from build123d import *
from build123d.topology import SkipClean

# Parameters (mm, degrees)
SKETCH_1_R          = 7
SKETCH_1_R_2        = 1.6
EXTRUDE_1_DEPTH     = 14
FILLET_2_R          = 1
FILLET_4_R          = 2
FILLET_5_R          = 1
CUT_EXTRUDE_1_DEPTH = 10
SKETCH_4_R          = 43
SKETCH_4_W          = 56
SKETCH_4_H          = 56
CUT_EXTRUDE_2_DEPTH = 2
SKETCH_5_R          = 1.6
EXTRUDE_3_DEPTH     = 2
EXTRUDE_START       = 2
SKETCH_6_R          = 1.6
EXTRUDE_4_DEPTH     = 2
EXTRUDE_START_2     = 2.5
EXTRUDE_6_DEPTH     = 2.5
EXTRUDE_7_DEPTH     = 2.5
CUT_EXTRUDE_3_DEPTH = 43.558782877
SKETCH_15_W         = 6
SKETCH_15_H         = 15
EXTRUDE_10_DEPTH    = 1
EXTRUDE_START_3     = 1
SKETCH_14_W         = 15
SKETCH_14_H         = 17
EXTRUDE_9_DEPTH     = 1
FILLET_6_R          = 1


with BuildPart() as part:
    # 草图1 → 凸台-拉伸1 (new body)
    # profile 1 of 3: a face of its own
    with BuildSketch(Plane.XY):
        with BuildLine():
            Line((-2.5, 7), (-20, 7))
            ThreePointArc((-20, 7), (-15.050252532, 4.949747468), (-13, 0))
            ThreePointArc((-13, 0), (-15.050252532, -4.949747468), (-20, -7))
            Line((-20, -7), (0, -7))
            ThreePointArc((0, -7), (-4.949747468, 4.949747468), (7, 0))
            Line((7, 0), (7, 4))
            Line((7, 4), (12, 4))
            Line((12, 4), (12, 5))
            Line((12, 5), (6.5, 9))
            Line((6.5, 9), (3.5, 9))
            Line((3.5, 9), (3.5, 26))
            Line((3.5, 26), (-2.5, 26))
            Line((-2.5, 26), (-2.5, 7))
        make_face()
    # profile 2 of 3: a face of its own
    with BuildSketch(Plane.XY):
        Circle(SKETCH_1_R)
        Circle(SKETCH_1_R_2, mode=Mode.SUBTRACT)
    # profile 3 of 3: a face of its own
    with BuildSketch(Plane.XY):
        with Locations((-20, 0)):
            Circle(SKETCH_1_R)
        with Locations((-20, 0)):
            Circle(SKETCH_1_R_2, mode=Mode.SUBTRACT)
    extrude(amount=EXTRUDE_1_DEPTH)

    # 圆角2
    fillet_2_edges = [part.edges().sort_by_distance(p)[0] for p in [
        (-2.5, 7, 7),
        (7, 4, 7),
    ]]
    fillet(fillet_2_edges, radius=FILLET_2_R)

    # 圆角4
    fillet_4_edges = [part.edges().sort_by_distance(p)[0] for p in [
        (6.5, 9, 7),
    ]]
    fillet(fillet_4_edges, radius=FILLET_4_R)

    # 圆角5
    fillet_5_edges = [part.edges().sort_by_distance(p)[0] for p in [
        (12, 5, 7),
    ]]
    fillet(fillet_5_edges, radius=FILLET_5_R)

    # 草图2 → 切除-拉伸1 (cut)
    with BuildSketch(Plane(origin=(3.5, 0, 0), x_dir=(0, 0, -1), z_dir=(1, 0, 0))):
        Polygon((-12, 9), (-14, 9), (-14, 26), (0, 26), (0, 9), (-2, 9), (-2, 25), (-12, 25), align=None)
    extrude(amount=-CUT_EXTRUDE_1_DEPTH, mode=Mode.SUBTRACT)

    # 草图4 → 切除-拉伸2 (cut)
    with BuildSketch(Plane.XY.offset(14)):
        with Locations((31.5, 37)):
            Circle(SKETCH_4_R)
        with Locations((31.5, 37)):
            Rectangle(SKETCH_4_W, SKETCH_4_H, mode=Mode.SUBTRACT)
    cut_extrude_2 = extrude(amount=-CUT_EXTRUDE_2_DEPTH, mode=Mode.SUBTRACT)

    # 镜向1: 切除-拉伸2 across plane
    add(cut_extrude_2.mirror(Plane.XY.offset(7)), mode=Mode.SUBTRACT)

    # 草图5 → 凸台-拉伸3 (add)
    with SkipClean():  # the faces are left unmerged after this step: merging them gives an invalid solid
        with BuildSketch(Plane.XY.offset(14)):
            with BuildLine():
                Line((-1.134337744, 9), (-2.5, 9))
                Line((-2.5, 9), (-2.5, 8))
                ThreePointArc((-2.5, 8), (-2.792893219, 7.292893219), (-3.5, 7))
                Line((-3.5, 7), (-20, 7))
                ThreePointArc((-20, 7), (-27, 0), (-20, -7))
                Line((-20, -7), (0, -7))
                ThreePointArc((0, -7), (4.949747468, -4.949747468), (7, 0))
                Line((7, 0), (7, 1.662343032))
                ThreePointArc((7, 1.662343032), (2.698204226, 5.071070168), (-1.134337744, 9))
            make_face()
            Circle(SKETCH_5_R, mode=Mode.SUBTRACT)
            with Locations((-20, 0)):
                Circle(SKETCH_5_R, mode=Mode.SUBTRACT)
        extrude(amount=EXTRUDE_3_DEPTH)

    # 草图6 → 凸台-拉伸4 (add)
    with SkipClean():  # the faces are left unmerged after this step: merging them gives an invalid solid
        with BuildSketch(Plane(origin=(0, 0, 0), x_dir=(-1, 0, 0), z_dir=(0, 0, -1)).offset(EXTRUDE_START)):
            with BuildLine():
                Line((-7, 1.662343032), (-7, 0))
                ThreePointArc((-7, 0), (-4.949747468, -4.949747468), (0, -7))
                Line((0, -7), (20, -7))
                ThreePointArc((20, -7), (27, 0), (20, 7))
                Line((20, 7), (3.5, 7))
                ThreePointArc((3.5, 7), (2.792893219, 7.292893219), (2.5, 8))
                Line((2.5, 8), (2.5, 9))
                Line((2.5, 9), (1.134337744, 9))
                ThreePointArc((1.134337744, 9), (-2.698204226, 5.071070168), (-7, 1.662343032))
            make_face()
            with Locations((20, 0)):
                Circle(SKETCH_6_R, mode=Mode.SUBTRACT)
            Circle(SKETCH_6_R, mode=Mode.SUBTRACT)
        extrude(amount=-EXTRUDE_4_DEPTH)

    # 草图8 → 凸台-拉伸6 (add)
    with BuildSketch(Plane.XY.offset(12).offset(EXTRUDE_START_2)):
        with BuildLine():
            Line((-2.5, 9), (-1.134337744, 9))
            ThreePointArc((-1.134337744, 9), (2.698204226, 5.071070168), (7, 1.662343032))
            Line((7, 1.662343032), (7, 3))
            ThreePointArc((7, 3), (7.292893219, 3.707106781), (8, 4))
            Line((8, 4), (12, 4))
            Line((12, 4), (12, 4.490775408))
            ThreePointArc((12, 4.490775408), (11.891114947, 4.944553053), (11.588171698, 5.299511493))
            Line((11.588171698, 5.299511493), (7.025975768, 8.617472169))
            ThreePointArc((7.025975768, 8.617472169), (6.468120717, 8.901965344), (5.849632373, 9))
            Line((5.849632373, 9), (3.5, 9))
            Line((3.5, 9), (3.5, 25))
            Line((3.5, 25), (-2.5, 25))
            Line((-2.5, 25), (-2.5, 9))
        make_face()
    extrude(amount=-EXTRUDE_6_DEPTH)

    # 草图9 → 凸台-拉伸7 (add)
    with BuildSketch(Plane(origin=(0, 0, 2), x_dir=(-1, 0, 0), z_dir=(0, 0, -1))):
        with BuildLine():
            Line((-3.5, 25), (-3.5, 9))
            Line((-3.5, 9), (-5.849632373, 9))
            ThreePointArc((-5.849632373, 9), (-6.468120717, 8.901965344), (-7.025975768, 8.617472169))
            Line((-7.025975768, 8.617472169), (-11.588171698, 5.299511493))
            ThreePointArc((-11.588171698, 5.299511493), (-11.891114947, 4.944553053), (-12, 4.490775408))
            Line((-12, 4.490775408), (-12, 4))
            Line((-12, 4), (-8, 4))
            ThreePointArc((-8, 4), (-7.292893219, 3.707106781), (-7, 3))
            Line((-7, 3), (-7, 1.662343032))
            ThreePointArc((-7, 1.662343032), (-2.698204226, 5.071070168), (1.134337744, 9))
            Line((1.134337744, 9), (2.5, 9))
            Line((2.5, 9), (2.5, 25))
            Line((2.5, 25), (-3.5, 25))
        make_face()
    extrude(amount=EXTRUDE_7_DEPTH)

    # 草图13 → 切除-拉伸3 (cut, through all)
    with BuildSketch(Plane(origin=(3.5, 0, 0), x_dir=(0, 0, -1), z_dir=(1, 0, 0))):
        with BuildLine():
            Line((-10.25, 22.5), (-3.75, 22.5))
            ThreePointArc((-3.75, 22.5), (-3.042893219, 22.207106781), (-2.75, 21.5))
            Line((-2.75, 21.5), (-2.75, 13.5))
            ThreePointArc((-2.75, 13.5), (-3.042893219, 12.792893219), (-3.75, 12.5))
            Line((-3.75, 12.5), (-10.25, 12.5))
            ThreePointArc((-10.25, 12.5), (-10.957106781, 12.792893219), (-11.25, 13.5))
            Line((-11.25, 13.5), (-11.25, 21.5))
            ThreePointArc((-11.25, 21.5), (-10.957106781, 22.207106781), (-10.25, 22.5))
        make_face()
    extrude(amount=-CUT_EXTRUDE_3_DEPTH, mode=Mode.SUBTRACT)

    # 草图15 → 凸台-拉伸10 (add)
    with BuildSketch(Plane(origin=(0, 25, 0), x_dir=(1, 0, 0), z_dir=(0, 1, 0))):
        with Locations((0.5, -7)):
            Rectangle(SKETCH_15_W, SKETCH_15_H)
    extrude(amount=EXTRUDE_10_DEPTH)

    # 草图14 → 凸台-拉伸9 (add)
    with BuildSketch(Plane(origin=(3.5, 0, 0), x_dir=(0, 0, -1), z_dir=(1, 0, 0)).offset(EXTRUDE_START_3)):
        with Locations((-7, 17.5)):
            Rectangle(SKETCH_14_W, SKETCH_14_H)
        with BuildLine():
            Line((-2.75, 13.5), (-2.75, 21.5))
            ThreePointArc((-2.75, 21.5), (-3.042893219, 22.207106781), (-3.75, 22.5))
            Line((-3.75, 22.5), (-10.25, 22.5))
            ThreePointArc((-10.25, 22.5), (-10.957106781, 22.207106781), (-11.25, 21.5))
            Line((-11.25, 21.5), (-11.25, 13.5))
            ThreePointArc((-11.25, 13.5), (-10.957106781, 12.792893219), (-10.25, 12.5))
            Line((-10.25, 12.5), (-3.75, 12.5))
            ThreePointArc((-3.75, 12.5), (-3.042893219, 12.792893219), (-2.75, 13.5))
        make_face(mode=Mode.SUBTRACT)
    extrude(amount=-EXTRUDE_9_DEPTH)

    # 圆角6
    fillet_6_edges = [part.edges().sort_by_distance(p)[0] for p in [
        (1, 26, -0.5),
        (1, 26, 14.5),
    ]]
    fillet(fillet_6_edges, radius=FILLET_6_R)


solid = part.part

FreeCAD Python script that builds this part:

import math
import FreeCAD as App
import Part
import Sketcher
from FreeCAD import Vector


def edges_at(feature, points):
    """Names of the edges that pass closest to the given points."""
    edges = feature.Shape.Edges
    near = lambda p: min(range(len(edges)), key=lambda i: edges[i].distToShape(Part.Vertex(*p))[0])
    return sorted({f"Edge{near(p) + 1}" for p in points})


def add_polygon(sketch, points):
    """Adds a closed chain of lines whose ends are joined by coincident constraints."""
    first, n = sketch.GeometryCount, len(points)
    for a, b in zip(points, points[1:] + points[:1]):
        sketch.addGeometry(Part.LineSegment(App.Vector(*a, 0), App.Vector(*b, 0)), False)
    for i in range(n):
        sketch.addConstraint(Sketcher.Constraint("Coincident", first + i, 2, first + (i + 1) % n, 1))

doc = App.newDocument("Part")
params = doc.addObject("Spreadsheet::Sheet", "Params")
for row, (alias, value) in enumerate([
    ("sketch1_radius", "7 mm"),
    ("sketch1_diameter", "3.2 mm"),
    ("sketch1_width", "20 mm"),
    ("sketch1_width2", "5 mm"),
    ("sketch1_width3", "3 mm"),
    ("pad1_length", "14 mm"),
    ("fillet_radius", "1 mm"),
    ("fillet2_radius", "2 mm"),
    ("fillet3_radius", "1 mm"),
    ("sketch2_width", "16 mm"),
    ("sketch2_width2", "17 mm"),
    ("sketch2_height", "2 mm"),
    ("sketch2_height2", "10 mm"),
    ("pocket1_length", "10 mm"),
    ("sketch3_diameter", "86 mm"),
    ("sketch3_width", "56 mm"),
    ("pocket2_length", "2 mm"),
    ("sketch4_radius", "1 mm"),
    ("sketch4_radius2", "7 mm"),
    ("sketch4_radius3", "43 mm"),
    ("sketch4_diameter", "3.2 mm"),
    ("sketch4_width", "20 mm"),
    ("pad2_length", "2 mm"),
    ("sketch5_radius", "7 mm"),
    ("sketch5_radius2", "1 mm"),
    ("sketch5_radius3", "43 mm"),
    ("sketch5_diameter", "3.2 mm"),
    ("sketch5_width", "20 mm"),
    ("pad3_length", "2 mm"),
    ("sketch6_radius", "43 mm"),
    ("sketch6_radius2", "1 mm"),
    ("sketch6_radius3", "2 mm"),
    ("sketch6_width", "4 mm"),
    ("sketch6_width2", "6 mm"),
    ("pad4_length", "2.5 mm"),
    ("sketch7_radius", "2 mm"),
    ("sketch7_radius2", "1 mm"),
    ("sketch7_radius3", "43 mm"),
    ("sketch7_width", "4 mm"),
    ("sketch7_width2", "6 mm"),
    ("pad5_length", "2.5 mm"),
    ("sketch8_radius", "1 mm"),
    ("sketch8_width", "8 mm"),
    ("sketch8_height", "6.5 mm"),
    ("sketch9_width", "6 mm"),
    ("sketch9_height", "15 mm"),
    ("pad6_length", "1 mm"),
    ("sketch10_radius", "1 mm"),
    ("sketch10_width", "17 mm"),
    ("sketch10_width2", "8 mm"),
    ("sketch10_height", "15 mm"),
    ("sketch10_height2", "6.5 mm"),
    ("pad7_length", "1 mm"),
    ("fillet4_radius", "1 mm"),
], start=1):
    params.set(f"A{row}", alias)
    params.set(f"B{row}", "=" + value)
    params.setAlias(f"B{row}", alias)

body = doc.addObject("PartDesign::Body", "Body")

sketch1 = doc.addObject("Sketcher::SketchObject", "Sketch")
body.addObject(sketch1)
sketch1.AttachmentSupport = (doc.XY_Plane, [""])
sketch1.MapMode = "FlatFace"
sketch1.addGeometry(Part.LineSegment(Vector(-2.5, 7, 0), Vector(-20, 7, 0)), False)
sketch1.addGeometry(Part.ArcOfCircle(Part.Circle(Vector(-20, 0, 0), Vector(0, 0, 1), 7), math.radians(90), math.radians(270)), False)
sketch1.addGeometry(Part.LineSegment(Vector(-20, -7, 0), Vector(0, -7, 0)), False)
sketch1.addGeometry(Part.ArcOfCircle(Part.Circle(Vector(0, 0, 0), Vector(0, 0, 1), 7), math.radians(-90), math.radians(0)), False)
sketch1.addGeometry(Part.LineSegment(Vector(7, 0, 0), Vector(7, 4, 0)), False)
sketch1.addGeometry(Part.LineSegment(Vector(7, 4, 0), Vector(12, 4, 0)), False)
sketch1.addGeometry(Part.LineSegment(Vector(12, 4, 0), Vector(12, 5, 0)), False)
sketch1.addGeometry(Part.LineSegment(Vector(12, 5, 0), Vector(6.5, 9, 0)), False)
sketch1.addGeometry(Part.LineSegment(Vector(6.5, 9, 0), Vector(3.5, 9, 0)), False)
sketch1.addGeometry(Part.LineSegment(Vector(3.5, 9, 0), Vector(3.5, 26, 0)), False)
sketch1.addGeometry(Part.LineSegment(Vector(3.5, 26, 0), Vector(-2.5, 26, 0)), False)
sketch1.addGeometry(Part.LineSegment(Vector(-2.5, 26, 0), Vector(-2.5, 7, 0)), False)
sketch1.addGeometry(Part.Circle(Vector(-20, 0, 0), Vector(0, 0, 1), 1.6), False)
sketch1.addGeometry(Part.Circle(Vector(0, 0, 0), Vector(0, 0, 1), 1.6), False)
sketch1.addConstraint(Sketcher.Constraint("Tangent", 0, 2, 1, 1))
sketch1.addConstraint(Sketcher.Constraint("Tangent", 1, 2, 2, 1))
sketch1.addConstraint(Sketcher.Constraint("Tangent", 2, 2, 3, 1))
sketch1.addConstraint(Sketcher.Constraint("Tangent", 3, 2, 4, 1))
sketch1.addConstraint(Sketcher.Constraint("Coincident", 4, 2, 5, 1))
sketch1.addConstraint(Sketcher.Constraint("Coincident", 5, 2, 6, 1))
sketch1.addConstraint(Sketcher.Constraint("Coincident", 6, 2, 7, 1))
sketch1.addConstraint(Sketcher.Constraint("Coincident", 7, 2, 8, 1))
sketch1.addConstraint(Sketcher.Constraint("Coincident", 8, 2, 9, 1))
sketch1.addConstraint(Sketcher.Constraint("Coincident", 9, 2, 10, 1))
sketch1.addConstraint(Sketcher.Constraint("Coincident", 10, 2, 11, 1))
sketch1.addConstraint(Sketcher.Constraint("Coincident", 11, 2, 0, 1))
sketch1.addConstraint(Sketcher.Constraint("Horizontal", 0))
sketch1.addConstraint(Sketcher.Constraint("Horizontal", 2))
sketch1.addConstraint(Sketcher.Constraint("Vertical", 4))
sketch1.addConstraint(Sketcher.Constraint("Horizontal", 5))
sketch1.addConstraint(Sketcher.Constraint("Vertical", 6))
sketch1.addConstraint(Sketcher.Constraint("Horizontal", 8))
sketch1.addConstraint(Sketcher.Constraint("Vertical", 9))
sketch1.addConstraint(Sketcher.Constraint("Horizontal", 10))
sketch1.addConstraint(Sketcher.Constraint("Vertical", 11))
sketch1.addConstraint(Sketcher.Constraint("Coincident", 3, 3, -1, 1))
sketch1.addConstraint(Sketcher.Constraint("Coincident", 13, 3, -1, 1))
sketch1.addConstraint(Sketcher.Constraint("Coincident", 12, 3, 1, 3))
sketch1.addConstraint(Sketcher.Constraint("Equal", 1, 3))
sketch1.addConstraint(Sketcher.Constraint("Equal", 12, 13))
sketch1.addConstraint(Sketcher.Constraint("Radius", 1, 7.0))
sketch1.addConstraint(Sketcher.Constraint("Diameter", 12, 3.2))
sketch1.addConstraint(Sketcher.Constraint("DistanceX", 2, 1, 2, 2, 20.0))
sketch1.addConstraint(Sketcher.Constraint("DistanceX", 5, 1, 5, 2, 5.0))
sketch1.addConstraint(Sketcher.Constraint("DistanceX", 8, 2, 8, 1, 3.0))
sketch1.addConstraint(Sketcher.Constraint("DistanceX", 10, 2, 10, 1, 6.0))
sketch1.addConstraint(Sketcher.Constraint("DistanceY", 4, 1, 4, 2, 4.0))
sketch1.addConstraint(Sketcher.Constraint("DistanceY", 6, 1, 6, 2, 1.0))
sketch1.addConstraint(Sketcher.Constraint("DistanceY", 9, 1, 9, 2, 17.0))
sketch1.addConstraint(Sketcher.Constraint("DistanceY", 11, 2, 11, 1, 19.0))
sketch1.addConstraint(Sketcher.Constraint("DistanceX", 0, 2, 0, 1, 17.5))
sketch1.setExpression("Constraints[26]", "Params.sketch1_radius")
sketch1.setExpression("Constraints[27]", "Params.sketch1_diameter")
sketch1.setExpression("Constraints[28]", "Params.sketch1_width")
sketch1.setExpression("Constraints[29]", "Params.sketch1_width2")
sketch1.setExpression("Constraints[30]", "Params.sketch1_width3")
pad1 = doc.addObject("PartDesign::Pad", "Pad")
body.addObject(pad1)
pad1.Profile = sketch1
pad1.setExpression("Length", "Params.pad1_length")
doc.recompute()

fillet = doc.addObject("PartDesign::Fillet", "Fillet")
body.addObject(fillet)
fillet.Base = (pad1, edges_at(pad1, [(-2.5, 7, 7), (7, 4, 7)]))
fillet.setExpression("Radius", "Params.fillet_radius")
doc.recompute()

fillet2 = doc.addObject("PartDesign::Fillet", "Fillet001")
body.addObject(fillet2)
fillet2.Base = (fillet, edges_at(fillet, [(6.5, 9, 7)]))
fillet2.setExpression("Radius", "Params.fillet2_radius")
doc.recompute()

fillet3 = doc.addObject("PartDesign::Fillet", "Fillet002")
body.addObject(fillet3)
fillet3.Base = (fillet2, edges_at(fillet2, [(12, 5, 7)]))
fillet3.setExpression("Radius", "Params.fillet3_radius")

sketch2 = doc.addObject("Sketcher::SketchObject", "Sketch001")
body.addObject(sketch2)
sketch2.AttachmentSupport = (doc.YZ_Plane, [""])
sketch2.MapMode = "FlatFace"
sketch2.AttachmentOffset = App.Placement(Vector(0, 0, 3.5), App.Rotation())
add_polygon(sketch2, [(9, 14), (9, 12), (25, 12), (25, 2), (9, 2), (9, 0), (26, 0), (26, 14)])
sketch2.addConstraint(Sketcher.Constraint("Vertical", 0))
sketch2.addConstraint(Sketcher.Constraint("Horizontal", 1))
sketch2.addConstraint(Sketcher.Constraint("Vertical", 2))
sketch2.addConstraint(Sketcher.Constraint("Horizontal", 3))
sketch2.addConstraint(Sketcher.Constraint("Vertical", 4))
sketch2.addConstraint(Sketcher.Constraint("Horizontal", 5))
sketch2.addConstraint(Sketcher.Constraint("Vertical", 6))
sketch2.addConstraint(Sketcher.Constraint("Horizontal", 7))
sketch2.addConstraint(Sketcher.Constraint("PointOnObject", 4, 2, -1))
sketch2.addConstraint(Sketcher.Constraint("Vertical", 0, 2, 3, 2))
sketch2.addConstraint(Sketcher.Constraint("Equal", 0, 4))
sketch2.addConstraint(Sketcher.Constraint("DistanceX", 1, 1, 1, 2, 16.0))
sketch2.addConstraint(Sketcher.Constraint("DistanceX", 5, 1, 5, 2, 17.0))
sketch2.addConstraint(Sketcher.Constraint("DistanceY", 0, 2, 0, 1, 2.0))
sketch2.addConstraint(Sketcher.Constraint("DistanceY", 2, 2, 2, 1, 10.0))
sketch2.addConstraint(Sketcher.Constraint("DistanceX", -1, 1, 0, 2, 9.0))
sketch2.setExpression("Constraints[19]", "Params.sketch2_width")
sketch2.setExpression("Constraints[20]", "Params.sketch2_width2")
sketch2.setExpression("Constraints[21]", "Params.sketch2_height")
sketch2.setExpression("Constraints[22]", "Params.sketch2_height2")
pocket1 = doc.addObject("PartDesign::Pocket", "Pocket")
body.addObject(pocket1)
pocket1.Profile = sketch2
pocket1.setExpression("Length", "Params.pocket1_length")

sketch3 = doc.addObject("Sketcher::SketchObject", "Sketch002")
body.addObject(sketch3)
sketch3.AttachmentSupport = (doc.XY_Plane, [""])
sketch3.MapMode = "FlatFace"
sketch3.AttachmentOffset = App.Placement(Vector(0, 0, 14), App.Rotation())
sketch3.addGeometry(Part.Circle(Vector(31.5, 37, 0), Vector(0, 0, 1), 43), False)
add_polygon(sketch3, [(59.5, 9), (3.5, 9), (3.5, 65), (59.5, 65)])
sketch3.addConstraint(Sketcher.Constraint("Horizontal", 1))
sketch3.addConstraint(Sketcher.Constraint("Vertical", 2))
sketch3.addConstraint(Sketcher.Constraint("Horizontal", 3))
sketch3.addConstraint(Sketcher.Constraint("Vertical", 4))
sketch3.addConstraint(Sketcher.Constraint("Equal", 3, 2))
sketch3.addConstraint(Sketcher.Constraint("Diameter", 0, 86.0))
sketch3.addConstraint(Sketcher.Constraint("DistanceX", 1, 2, 1, 1, 56.0))
sketch3.addConstraint(Sketcher.Constraint("DistanceY", -1, 1, 0, 3, 37.0))
sketch3.addConstraint(Sketcher.Constraint("DistanceY", -1, 1, 1, 2, 9.0))
sketch3.addConstraint(Sketcher.Constraint("DistanceX", 1, 2, 0, 3, 28.0))
sketch3.addConstraint(Sketcher.Constraint("DistanceX", -1, 1, 0, 3, 31.5))
sketch3.setExpression("Constraints[9]", "Params.sketch3_diameter")
sketch3.setExpression("Constraints[10]", "Params.sketch3_width")
pocket2 = doc.addObject("PartDesign::Pocket", "Pocket001")
body.addObject(pocket2)
pocket2.Profile = sketch3
pocket2.setExpression("Length", "Params.pocket2_length")
doc.recompute()

datumplane = doc.addObject("PartDesign::Plane", "DatumPlane")
body.addObject(datumplane)
datumplane.AttachmentSupport = (doc.XY_Plane, [""])
datumplane.MapMode = "FlatFace"
datumplane.AttachmentOffset = App.Placement(Vector(0, 0, 7), App.Rotation())
mirrored = doc.addObject("PartDesign::Mirrored", "Mirrored")
body.addObject(mirrored)
mirrored.Originals = [pocket2]
mirrored.MirrorPlane = (datumplane, [""])
body.Tip = mirrored

sketch4 = doc.addObject("Sketcher::SketchObject", "Sketch003")
body.addObject(sketch4)
sketch4.AttachmentSupport = (doc.XY_Plane, [""])
sketch4.MapMode = "FlatFace"
sketch4.AttachmentOffset = App.Placement(Vector(0, 0, 14), App.Rotation())
sketch4.addGeometry(Part.LineSegment(Vector(-1.134338, 9, 0), Vector(-2.5, 9, 0)), False)
sketch4.addGeometry(Part.LineSegment(Vector(-2.5, 9, 0), Vector(-2.5, 8, 0)), False)
sketch4.addGeometry(Part.ArcOfCircle(Part.Circle(Vector(-3.5, 8, 0), Vector(0, 0, 1), 1), math.radians(-90), math.radians(0)), False)
sketch4.addGeometry(Part.LineSegment(Vector(-3.5, 7, 0), Vector(-20, 7, 0)), False)
sketch4.addGeometry(Part.ArcOfCircle(Part.Circle(Vector(-20, 0, 0), Vector(0, 0, 1), 7), math.radians(90), math.radians(270)), False)
sketch4.addGeometry(Part.LineSegment(Vector(-20, -7, 0), Vector(0, -7, 0)), False)
sketch4.addGeometry(Part.ArcOfCircle(Part.Circle(Vector(0, 0, 0), Vector(0, 0, 1), 7), math.radians(-90), math.radians(0)), False)
sketch4.addGeometry(Part.LineSegment(Vector(7, 0, 0), Vector(7, 1.662343, 0)), False)
sketch4.addGeometry(Part.ArcOfCircle(Part.Circle(Vector(31.5, 37, 0), Vector(0, 0, 1), 43), math.radians(-139.370671), math.radians(-124.73401)), False)
sketch4.addGeometry(Part.Circle(Vector(-20, 0, 0), Vector(0, 0, 1), 1.6), False)
sketch4.addGeometry(Part.Circle(Vector(0, 0, 0), Vector(0, 0, 1), 1.6), False)
sketch4.addConstraint(Sketcher.Constraint("Coincident", 0, 2, 1, 1))
sketch4.addConstraint(Sketcher.Constraint("Tangent", 1, 2, 2, 2))
sketch4.addConstraint(Sketcher.Constraint("Tangent", 2, 1, 3, 1))
sketch4.addConstraint(Sketcher.Constraint("Tangent", 3, 2, 4, 1))
sketch4.addConstraint(Sketcher.Constraint("Tangent", 4, 2, 5, 1))
sketch4.addConstraint(Sketcher.Constraint("Tangent", 5, 2, 6, 1))
sketch4.addConstraint(Sketcher.Constraint("Tangent", 6, 2, 7, 1))
sketch4.addConstraint(Sketcher.Constraint("Coincident", 7, 2, 8, 2))
sketch4.addConstraint(Sketcher.Constraint("Coincident", 8, 1, 0, 1))
sketch4.addConstraint(Sketcher.Constraint("Horizontal", 0))
sketch4.addConstraint(Sketcher.Constraint("Vertical", 1))
sketch4.addConstraint(Sketcher.Constraint("Horizontal", 3))
sketch4.addConstraint(Sketcher.Constraint("Horizontal", 5))
sketch4.addConstraint(Sketcher.Constraint("Vertical", 7))
sketch4.addConstraint(Sketcher.Constraint("Coincident", 6, 3, -1, 1))
sketch4.addConstraint(Sketcher.Constraint("Coincident", 10, 3, -1, 1))
sketch4.addConstraint(Sketcher.Constraint("Coincident", 9, 3, 4, 3))
sketch4.addConstraint(Sketcher.Constraint("Equal", 4, 6))
sketch4.addConstraint(Sketcher.Constraint("Equal", 9, 10))
sketch4.addConstraint(Sketcher.Constraint("Radius", 2, 1.0))
sketch4.addConstraint(Sketcher.Constraint("Radius", 4, 7.0))
sketch4.addConstraint(Sketcher.Constraint("Radius", 8, 43.0))
sketch4.addConstraint(Sketcher.Constraint("Diameter", 9, 3.2))
sketch4.addConstraint(Sketcher.Constraint("DistanceX", 5, 1, 5, 2, 20.0))
sketch4.addConstraint(Sketcher.Constraint("DistanceY", 1, 2, 1, 1, 1.0))
sketch4.addConstraint(Sketcher.Constraint("DistanceX", 3, 2, 3, 1, 16.5))
sketch4.addConstraint(Sketcher.Constraint("DistanceY", -1, 1, 8, 3, 37.0))
sketch4.addConstraint(Sketcher.Constraint("DistanceX", 2, 3, 8, 3, 35.0))
sketch4.setExpression("Constraints[19]", "Params.sketch4_radius")
sketch4.setExpression("Constraints[20]", "Params.sketch4_radius2")
sketch4.setExpression("Constraints[21]", "Params.sketch4_radius3")
sketch4.setExpression("Constraints[22]", "Params.sketch4_diameter")
sketch4.setExpression("Constraints[23]", "Params.sketch4_width")
pad2 = doc.addObject("PartDesign::Pad", "Pad001")
body.addObject(pad2)
pad2.Profile = sketch4
pad2.setExpression("Length", "Params.pad2_length")

sketch5 = doc.addObject("Sketcher::SketchObject", "Sketch004")
body.addObject(sketch5)
sketch5.AttachmentSupport = (doc.XY_Plane, [""])
sketch5.MapMode = "FlatFace"
sketch5.AttachmentOffset = App.Placement(Vector(0, 0, -2), App.Rotation())
sketch5.addGeometry(Part.LineSegment(Vector(7, 1.662343, 0), Vector(7, 0, 0)), False)
sketch5.addGeometry(Part.ArcOfCircle(Part.Circle(Vector(0, 0, 0), Vector(0, 0, 1), 7), math.radians(-90), math.radians(0)), False)
sketch5.addGeometry(Part.LineSegment(Vector(0, -7, 0), Vector(-20, -7, 0)), False)
sketch5.addGeometry(Part.ArcOfCircle(Part.Circle(Vector(-20, 0, 0), Vector(0, 0, 1), 7), math.radians(90), math.radians(270)), False)
sketch5.addGeometry(Part.LineSegment(Vector(-20, 7, 0), Vector(-3.5, 7, 0)), False)
sketch5.addGeometry(Part.ArcOfCircle(Part.Circle(Vector(-3.5, 8, 0), Vector(0, 0, 1), 1), math.radians(-90), math.radians(0)), False)
sketch5.addGeometry(Part.LineSegment(Vector(-2.5, 8, 0), Vector(-2.5, 9, 0)), False)
sketch5.addGeometry(Part.LineSegment(Vector(-2.5, 9, 0), Vector(-1.134338, 9, 0)), False)
sketch5.addGeometry(Part.ArcOfCircle(Part.Circle(Vector(31.5, 37, 0), Vector(0, 0, 1), 43), math.radians(-139.370671), math.radians(-124.73401)), False)
sketch5.addGeometry(Part.Circle(Vector(0, 0, 0), Vector(0, 0, 1), 1.6), False)
sketch5.addGeometry(Part.Circle(Vector(-20, 0, 0), Vector(0, 0, 1), 1.6), False)
sketch5.addConstraint(Sketcher.Constraint("Tangent", 0, 2, 1, 2))
sketch5.addConstraint(Sketcher.Constraint("Tangent", 1, 1, 2, 1))
sketch5.addConstraint(Sketcher.Constraint("Tangent", 2, 2, 3, 2))
sketch5.addConstraint(Sketcher.Constraint("Tangent", 3, 1, 4, 1))
sketch5.addConstraint(Sketcher.Constraint("Tangent", 4, 2, 5, 1))
sketch5.addConstraint(Sketcher.Constraint("Tangent", 5, 2, 6, 1))
sketch5.addConstraint(Sketcher.Constraint("Coincident", 6, 2, 7, 1))
sketch5.addConstraint(Sketcher.Constraint("Coincident", 7, 2, 8, 1))
sketch5.addConstraint(Sketcher.Constraint("Coincident", 8, 2, 0, 1))
sketch5.addConstraint(Sketcher.Constraint("Vertical", 0))
sketch5.addConstraint(Sketcher.Constraint("Horizontal", 2))
sketch5.addConstraint(Sketcher.Constraint("Horizontal", 4))
sketch5.addConstraint(Sketcher.Constraint("Vertical", 6))
sketch5.addConstraint(Sketcher.Constraint("Horizontal", 7))
sketch5.addConstraint(Sketcher.Constraint("Coincident", 1, 3, -1, 1))
sketch5.addConstraint(Sketcher.Constraint("Coincident", 9, 3, -1, 1))
sketch5.addConstraint(Sketcher.Constraint("Coincident", 10, 3, 3, 3))
sketch5.addConstraint(Sketcher.Constraint("Equal", 1, 3))
sketch5.addConstraint(Sketcher.Constraint("Equal", 9, 10))
sketch5.addConstraint(Sketcher.Constraint("Radius", 1, 7.0))
sketch5.addConstraint(Sketcher.Constraint("Radius", 5, 1.0))
sketch5.addConstraint(Sketcher.Constraint("Radius", 8, 43.0))
sketch5.addConstraint(Sketcher.Constraint("Diameter", 9, 3.2))
sketch5.addConstraint(Sketcher.Constraint("DistanceX", 2, 2, 2, 1, 20.0))
sketch5.addConstraint(Sketcher.Constraint("DistanceY", 6, 1, 6, 2, 1.0))
sketch5.addConstraint(Sketcher.Constraint("DistanceX", 4, 1, 4, 2, 16.5))
sketch5.addConstraint(Sketcher.Constraint("DistanceY", -1, 1, 8, 3, 37.0))
sketch5.addConstraint(Sketcher.Constraint("DistanceX", 5, 3, 8, 3, 35.0))
sketch5.setExpression("Constraints[19]", "Params.sketch5_radius")
sketch5.setExpression("Constraints[20]", "Params.sketch5_radius2")
sketch5.setExpression("Constraints[21]", "Params.sketch5_radius3")
sketch5.setExpression("Constraints[22]", "Params.sketch5_diameter")
sketch5.setExpression("Constraints[23]", "Params.sketch5_width")
pad3 = doc.addObject("PartDesign::Pad", "Pad002")
body.addObject(pad3)
pad3.Profile = sketch5
pad3.setExpression("Length", "Params.pad3_length")

sketch6 = doc.addObject("Sketcher::SketchObject", "Sketch005")
body.addObject(sketch6)
sketch6.AttachmentSupport = (doc.XY_Plane, [""])
sketch6.MapMode = "FlatFace"
sketch6.AttachmentOffset = App.Placement(Vector(0, 0, 14.5), App.Rotation())
sketch6.addGeometry(Part.LineSegment(Vector(-2.5, 9, 0), Vector(-1.134338, 9, 0)), False)
sketch6.addGeometry(Part.ArcOfCircle(Part.Circle(Vector(31.5, 37, 0), Vector(0, 0, 1), 43), math.radians(-139.370671), math.radians(-124.73401)), False)
sketch6.addGeometry(Part.LineSegment(Vector(7, 1.662343, 0), Vector(7, 3, 0)), False)
sketch6.addGeometry(Part.ArcOfCircle(Part.Circle(Vector(8, 3, 0), Vector(0, 0, 1), 1), math.radians(90), math.radians(180)), False)
sketch6.addGeometry(Part.LineSegment(Vector(8, 4, 0), Vector(12, 4, 0)), False)
sketch6.addGeometry(Part.LineSegment(Vector(12, 4, 0), Vector(12, 4.490775, 0)), False)
sketch6.addGeometry(Part.ArcOfCircle(Part.Circle(Vector(11, 4.490775, 0), Vector(0, 0, 1), 1), math.radians(0), math.radians(53.972626)), False)
sketch6.addGeometry(Part.LineSegment(Vector(11.588172, 5.299511, 0), Vector(7.025976, 8.617472, 0)), False)
sketch6.addGeometry(Part.ArcOfCircle(Part.Circle(Vector(5.849632, 7, 0), Vector(0, 0, 1), 2), math.radians(53.972627), math.radians(90)), False)
sketch6.addGeometry(Part.LineSegment(Vector(5.849632, 9, 0), Vector(3.5, 9, 0)), False)
sketch6.addGeometry(Part.LineSegment(Vector(3.5, 9, 0), Vector(3.5, 25, 0)), False)
sketch6.addGeometry(Part.LineSegment(Vector(3.5, 25, 0), Vector(-2.5, 25, 0)), False)
sketch6.addGeometry(Part.LineSegment(Vector(-2.5, 25, 0), Vector(-2.5, 9, 0)), False)
sketch6.addConstraint(Sketcher.Constraint("Coincident", 0, 2, 1, 1))
sketch6.addConstraint(Sketcher.Constraint("Coincident", 1, 2, 2, 1))
sketch6.addConstraint(Sketcher.Constraint("Tangent", 2, 2, 3, 2))
sketch6.addConstraint(Sketcher.Constraint("Tangent", 3, 1, 4, 1))
sketch6.addConstraint(Sketcher.Constraint("Coincident", 4, 2, 5, 1))
sketch6.addConstraint(Sketcher.Constraint("Tangent", 5, 2, 6, 1))
sketch6.addConstraint(Sketcher.Constraint("Tangent", 6, 2, 7, 1))
sketch6.addConstraint(Sketcher.Constraint("Tangent", 7, 2, 8, 1))
sketch6.addConstraint(Sketcher.Constraint("Tangent", 8, 2, 9, 1))
sketch6.addConstraint(Sketcher.Constraint("Coincident", 9, 2, 10, 1))
sketch6.addConstraint(Sketcher.Constraint("Coincident", 10, 2, 11, 1))
sketch6.addConstraint(Sketcher.Constraint("Coincident", 11, 2, 12, 1))
sketch6.addConstraint(Sketcher.Constraint("Coincident", 12, 2, 0, 1))
sketch6.addConstraint(Sketcher.Constraint("Horizontal", 0))
sketch6.addConstraint(Sketcher.Constraint("Vertical", 2))
sketch6.addConstraint(Sketcher.Constraint("Horizontal", 4))
sketch6.addConstraint(Sketcher.Constraint("Vertical", 5))
sketch6.addConstraint(Sketcher.Constraint("Horizontal", 9))
sketch6.addConstraint(Sketcher.Constraint("Vertical", 10))
sketch6.addConstraint(Sketcher.Constraint("Horizontal", 11))
sketch6.addConstraint(Sketcher.Constraint("Vertical", 12))
sketch6.addConstraint(Sketcher.Constraint("Equal", 3, 6))
sketch6.addConstraint(Sketcher.Constraint("Horizontal", 0, 2, 8, 2))
sketch6.addConstraint(Sketcher.Constraint("Radius", 1, 43.0))
sketch6.addConstraint(Sketcher.Constraint("Radius", 3, 1.0))
sketch6.addConstraint(Sketcher.Constraint("Radius", 8, 2.0))
sketch6.addConstraint(Sketcher.Constraint("DistanceX", 4, 1, 4, 2, 4.0))
sketch6.addConstraint(Sketcher.Constraint("DistanceX", 11, 2, 11, 1, 6.0))
sketch6.addConstraint(Sketcher.Constraint("DistanceY", 10, 1, 10, 2, 16.0))
sketch6.addConstraint(Sketcher.Constraint("DistanceY", -1, 1, 1, 3, 37.0))
sketch6.addConstraint(Sketcher.Constraint("DistanceX", -1, 1, 3, 3, 8.0))
sketch6.addConstraint(Sketcher.Constraint("DistanceY", -1, 1, 3, 3, 3.0))
sketch6.addConstraint(Sketcher.Constraint("DistanceY", -1, 1, 8, 3, 7.0))
sketch6.addConstraint(Sketcher.Constraint("DistanceX", -1, 1, 1, 3, 31.5))
sketch6.addConstraint(Sketcher.Constraint("DistanceX", -1, 1, 9, 2, 3.5))
sketch6.addConstraint(Sketcher.Constraint("DistanceX", 9, 2, 9, 1, 2.349632))
sketch6.addConstraint(Sketcher.Constraint("DistanceY", 5, 1, 5, 2, 0.490775))
sketch6.setExpression("Constraints[23]", "Params.sketch6_radius")
sketch6.setExpression("Constraints[24]", "Params.sketch6_radius2")
sketch6.setExpression("Constraints[25]", "Params.sketch6_radius3")
sketch6.setExpression("Constraints[26]", "Params.sketch6_width")
sketch6.setExpression("Constraints[27]", "Params.sketch6_width2")
pad4 = doc.addObject("PartDesign::Pad", "Pad003")
body.addObject(pad4)
pad4.Profile = sketch6
pad4.setExpression("Length", "Params.pad4_length")
pad4.Reversed = True

sketch7 = doc.addObject("Sketcher::SketchObject", "Sketch006")
body.addObject(sketch7)
sketch7.AttachmentSupport = (doc.XY_Plane, [""])
sketch7.MapMode = "FlatFace"
sketch7.AttachmentOffset = App.Placement(Vector(0, 0, 2), App.Rotation())
sketch7.addGeometry(Part.LineSegment(Vector(3.5, 25, 0), Vector(3.5, 9, 0)), False)
sketch7.addGeometry(Part.LineSegment(Vector(3.5, 9, 0), Vector(5.849632, 9, 0)), False)
sketch7.addGeometry(Part.ArcOfCircle(Part.Circle(Vector(5.849632, 7, 0), Vector(0, 0, 1), 2), math.radians(53.972627), math.radians(90)), False)
sketch7.addGeometry(Part.LineSegment(Vector(7.025976, 8.617472, 0), Vector(11.588172, 5.299511, 0)), False)
sketch7.addGeometry(Part.ArcOfCircle(Part.Circle(Vector(11, 4.490775, 0), Vector(0, 0, 1), 1), math.radians(0), math.radians(53.972626)), False)
sketch7.addGeometry(Part.LineSegment(Vector(12, 4.490775, 0), Vector(12, 4, 0)), False)
sketch7.addGeometry(Part.LineSegment(Vector(12, 4, 0), Vector(8, 4, 0)), False)
sketch7.addGeometry(Part.ArcOfCircle(Part.Circle(Vector(8, 3, 0), Vector(0, 0, 1), 1), math.radians(90), math.radians(180)), False)
sketch7.addGeometry(Part.LineSegment(Vector(7, 3, 0), Vector(7, 1.662343, 0)), False)
sketch7.addGeometry(Part.ArcOfCircle(Part.Circle(Vector(31.5, 37, 0), Vector(0, 0, 1), 43), math.radians(-139.370671), math.radians(-124.73401)), False)
sketch7.addGeometry(Part.LineSegment(Vector(-1.134338, 9, 0), Vector(-2.5, 9, 0)), False)
sketch7.addGeometry(Part.LineSegment(Vector(-2.5, 9, 0), Vector(-2.5, 25, 0)), False)
sketch7.addGeometry(Part.LineSegment(Vector(-2.5, 25, 0), Vector(3.5, 25, 0)), False)
sketch7.addConstraint(Sketcher.Constraint("Coincident", 0, 2, 1, 1))
sketch7.addConstraint(Sketcher.Constraint("Tangent", 1, 2, 2, 2))
sketch7.addConstraint(Sketcher.Constraint("Tangent", 2, 1, 3, 1))
sketch7.addConstraint(Sketcher.Constraint("Tangent", 3, 2, 4, 2))
sketch7.addConstraint(Sketcher.Constraint("Tangent", 4, 1, 5, 1))
sketch7.addConstraint(Sketcher.Constraint("Coincident", 5, 2, 6, 1))
sketch7.addConstraint(Sketcher.Constraint("Tangent", 6, 2, 7, 1))
sketch7.addConstraint(Sketcher.Constraint("Tangent", 7, 2, 8, 1))
sketch7.addConstraint(Sketcher.Constraint("Coincident", 8, 2, 9, 2))
sketch7.addConstraint(Sketcher.Constraint("Coincident", 9, 1, 10, 1))
sketch7.addConstraint(Sketcher.Constraint("Coincident", 10, 2, 11, 1))
sketch7.addConstraint(Sketcher.Constraint("Coincident", 11, 2, 12, 1))
sketch7.addConstraint(Sketcher.Constraint("Coincident", 12, 2, 0, 1))
sketch7.addConstraint(Sketcher.Constraint("Vertical", 0))
sketch7.addConstraint(Sketcher.Constraint("Horizontal", 1))
sketch7.addConstraint(Sketcher.Constraint("Vertical", 5))
sketch7.addConstraint(Sketcher.Constraint("Horizontal", 6))
sketch7.addConstraint(Sketcher.Constraint("Vertical", 8))
sketch7.addConstraint(Sketcher.Constraint("Horizontal", 10))
sketch7.addConstraint(Sketcher.Constraint("Vertical", 11))
sketch7.addConstraint(Sketcher.Constraint("Horizontal", 12))
sketch7.addConstraint(Sketcher.Constraint("Equal", 4, 7))
sketch7.addConstraint(Sketcher.Constraint("Horizontal", 1, 2, 9, 1))
sketch7.addConstraint(Sketcher.Constraint("Radius", 2, 2.0))
sketch7.addConstraint(Sketcher.Constraint("Radius", 4, 1.0))
sketch7.addConstraint(Sketcher.Constraint("Radius", 9, 43.0))
sketch7.addConstraint(Sketcher.Constraint("DistanceX", 6, 2, 6, 1, 4.0))
sketch7.addConstraint(Sketcher.Constraint("DistanceX", 12, 1, 12, 2, 6.0))
sketch7.addConstraint(Sketcher.Constraint("DistanceY", 0, 2, 0, 1, 16.0))
sketch7.addConstraint(Sketcher.Constraint("DistanceY", -1, 1, 2, 3, 7.0))
sketch7.addConstraint(Sketcher.Constraint("DistanceX", -1, 1, 4, 3, 11.0))
sketch7.addConstraint(Sketcher.Constraint("DistanceY", -1, 1, 7, 3, 3.0))
sketch7.addConstraint(Sketcher.Constraint("DistanceY", -1, 1, 9, 3, 37.0))
sketch7.addConstraint(Sketcher.Constraint("DistanceX", 0, 2, 9, 3, 28.0))
sketch7.addConstraint(Sketcher.Constraint("DistanceX", -1, 1, 9, 3, 31.5))
sketch7.addConstraint(Sketcher.Constraint("DistanceX", 1, 1, 1, 2, 2.349632))
sketch7.addConstraint(Sketcher.Constraint("DistanceY", 5, 2, 5, 1, 0.490775))
sketch7.setExpression("Constraints[23]", "Params.sketch7_radius")
sketch7.setExpression("Constraints[24]", "Params.sketch7_radius2")
sketch7.setExpression("Constraints[25]", "Params.sketch7_radius3")
sketch7.setExpression("Constraints[26]", "Params.sketch7_width")
sketch7.setExpression("Constraints[27]", "Params.sketch7_width2")
pad5 = doc.addObject("PartDesign::Pad", "Pad004")
body.addObject(pad5)
pad5.Profile = sketch7
pad5.setExpression("Length", "Params.pad5_length")
pad5.Reversed = True

sketch8 = doc.addObject("Sketcher::SketchObject", "Sketch007")
body.addObject(sketch8)
sketch8.AttachmentSupport = (doc.YZ_Plane, [""])
sketch8.MapMode = "FlatFace"
sketch8.AttachmentOffset = App.Placement(Vector(0, 0, 3.5), App.Rotation())
sketch8.addGeometry(Part.LineSegment(Vector(22.5, 3.75, 0), Vector(22.5, 10.25, 0)), False)
sketch8.addGeometry(Part.ArcOfCircle(Part.Circle(Vector(21.5, 10.25, 0), Vector(0, 0, 1), 1), math.radians(0), math.radians(90)), False)
sketch8.addGeometry(Part.LineSegment(Vector(21.5, 11.25, 0), Vector(13.5, 11.25, 0)), False)
sketch8.addGeometry(Part.ArcOfCircle(Part.Circle(Vector(13.5, 10.25, 0), Vector(0, 0, 1), 1), math.radians(90), math.radians(180)), False)
sketch8.addGeometry(Part.LineSegment(Vector(12.5, 10.25, 0), Vector(12.5, 3.75, 0)), False)
sketch8.addGeometry(Part.ArcOfCircle(Part.Circle(Vector(13.5, 3.75, 0), Vector(0, 0, 1), 1), math.radians(-180), math.radians(-90)), False)
sketch8.addGeometry(Part.LineSegment(Vector(13.5, 2.75, 0), Vector(21.5, 2.75, 0)), False)
sketch8.addGeometry(Part.ArcOfCircle(Part.Circle(Vector(21.5, 3.75, 0), Vector(0, 0, 1), 1), math.radians(-90), math.radians(0)), False)
sketch8.addConstraint(Sketcher.Constraint("Tangent", 0, 2, 1, 1))
sketch8.addConstraint(Sketcher.Constraint("Tangent", 1, 2, 2, 1))
sketch8.addConstraint(Sketcher.Constraint("Tangent", 2, 2, 3, 1))
sketch8.addConstraint(Sketcher.Constraint("Tangent", 3, 2, 4, 1))
sketch8.addConstraint(Sketcher.Constraint("Tangent", 4, 2, 5, 1))
sketch8.addConstraint(Sketcher.Constraint("Tangent", 5, 2, 6, 1))
sketch8.addConstraint(Sketcher.Constraint("Tangent", 6, 2, 7, 1))
sketch8.addConstraint(Sketcher.Constraint("Tangent", 7, 2, 0, 1))
sketch8.addConstraint(Sketcher.Constraint("Vertical", 0))
sketch8.addConstraint(Sketcher.Constraint("Horizontal", 2))
sketch8.addConstraint(Sketcher.Constraint("Vertical", 4))
sketch8.addConstraint(Sketcher.Constraint("Horizontal", 6))
sketch8.addConstraint(Sketcher.Constraint("Equal", 1, 3))
sketch8.addConstraint(Sketcher.Constraint("Equal", 3, 5))
sketch8.addConstraint(Sketcher.Constraint("Equal", 5, 7))
sketch8.addConstraint(Sketcher.Constraint("Radius", 1, 1.0))
sketch8.addConstraint(Sketcher.Constraint("DistanceX", 2, 2, 2, 1, 8.0))
sketch8.addConstraint(Sketcher.Constraint("DistanceY", 0, 1, 0, 2, 6.5))
sketch8.addConstraint(Sketcher.Constraint("DistanceX", -1, 1, 1, 3, 21.5))
sketch8.addConstraint(Sketcher.Constraint("DistanceY", -1, 1, 1, 3, 10.25))
sketch8.setExpression("Constraints[15]", "Params.sketch8_radius")
sketch8.setExpression("Constraints[16]", "Params.sketch8_width")
sketch8.setExpression("Constraints[17]", "Params.sketch8_height")
pocket3 = doc.addObject("PartDesign::Pocket", "Pocket002")
body.addObject(pocket3)
pocket3.Profile = sketch8
pocket3.Type = "ThroughAll"

sketch9 = doc.addObject("Sketcher::SketchObject", "Sketch008")
body.addObject(sketch9)
sketch9.AttachmentSupport = (doc.XZ_Plane, [""])
sketch9.MapMode = "FlatFace"
sketch9.AttachmentOffset = App.Placement(Vector(0, 0, -25), App.Rotation())
add_polygon(sketch9, [(-2.5, -0.5), (-2.5, 14.5), (3.5, 14.5), (3.5, -0.5)])
sketch9.addConstraint(Sketcher.Constraint("Vertical", 0))
sketch9.addConstraint(Sketcher.Constraint("Horizontal", 1))
sketch9.addConstraint(Sketcher.Constraint("Vertical", 2))
sketch9.addConstraint(Sketcher.Constraint("Horizontal", 3))
sketch9.addConstraint(Sketcher.Constraint("DistanceX", 1, 1, 1, 2, 6.0))
sketch9.addConstraint(Sketcher.Constraint("DistanceY", 0, 1, 0, 2, 15.0))
sketch9.addConstraint(Sketcher.Constraint("DistanceX", 0, 2, -1, 1, 2.5))
sketch9.addConstraint(Sketcher.Constraint("DistanceY", -1, 1, 0, 2, 14.5))
sketch9.setExpression("Constraints[8]", "Params.sketch9_width")
sketch9.setExpression("Constraints[9]", "Params.sketch9_height")
pad6 = doc.addObject("PartDesign::Pad", "Pad005")
body.addObject(pad6)
pad6.Profile = sketch9
pad6.setExpression("Length", "Params.pad6_length")
pad6.Reversed = True

sketch10 = doc.addObject("Sketcher::SketchObject", "Sketch009")
body.addObject(sketch10)
sketch10.AttachmentSupport = (doc.YZ_Plane, [""])
sketch10.MapMode = "FlatFace"
sketch10.AttachmentOffset = App.Placement(Vector(0, 0, 4.5), App.Rotation())
add_polygon(sketch10, [(26, 14.5), (9, 14.5), (9, -0.5), (26, -0.5)])
sketch10.addGeometry(Part.LineSegment(Vector(21.5, 2.75, 0), Vector(13.5, 2.75, 0)), False)
sketch10.addGeometry(Part.ArcOfCircle(Part.Circle(Vector(13.5, 3.75, 0), Vector(0, 0, 1), 1), math.radians(-180), math.radians(-90)), False)
sketch10.addGeometry(Part.LineSegment(Vector(12.5, 3.75, 0), Vector(12.5, 10.25, 0)), False)
sketch10.addGeometry(Part.ArcOfCircle(Part.Circle(Vector(13.5, 10.25, 0), Vector(0, 0, 1), 1), math.radians(90), math.radians(180)), False)
sketch10.addGeometry(Part.LineSegment(Vector(13.5, 11.25, 0), Vector(21.5, 11.25, 0)), False)
sketch10.addGeometry(Part.ArcOfCircle(Part.Circle(Vector(21.5, 10.25, 0), Vector(0, 0, 1), 1), math.radians(0), math.radians(90)), False)
sketch10.addGeometry(Part.LineSegment(Vector(22.5, 10.25, 0), Vector(22.5, 3.75, 0)), False)
sketch10.addGeometry(Part.ArcOfCircle(Part.Circle(Vector(21.5, 3.75, 0), Vector(0, 0, 1), 1), math.radians(-90), math.radians(0)), False)
sketch10.addConstraint(Sketcher.Constraint("Tangent", 4, 2, 5, 2))
sketch10.addConstraint(Sketcher.Constraint("Tangent", 5, 1, 6, 1))
sketch10.addConstraint(Sketcher.Constraint("Tangent", 6, 2, 7, 2))
sketch10.addConstraint(Sketcher.Constraint("Tangent", 7, 1, 8, 1))
sketch10.addConstraint(Sketcher.Constraint("Tangent", 8, 2, 9, 2))
sketch10.addConstraint(Sketcher.Constraint("Tangent", 9, 1, 10, 1))
sketch10.addConstraint(Sketcher.Constraint("Tangent", 10, 2, 11, 2))
sketch10.addConstraint(Sketcher.Constraint("Tangent", 11, 1, 4, 1))
sketch10.addConstraint(Sketcher.Constraint("Horizontal", 0))
sketch10.addConstraint(Sketcher.Constraint("Vertical", 1))
sketch10.addConstraint(Sketcher.Constraint("Horizontal", 2))
sketch10.addConstraint(Sketcher.Constraint("Vertical", 3))
sketch10.addConstraint(Sketcher.Constraint("Horizontal", 4))
sketch10.addConstraint(Sketcher.Constraint("Vertical", 6))
sketch10.addConstraint(Sketcher.Constraint("Horizontal", 8))
sketch10.addConstraint(Sketcher.Constraint("Vertical", 10))
sketch10.addConstraint(Sketcher.Constraint("Equal", 5, 7))
sketch10.addConstraint(Sketcher.Constraint("Equal", 7, 9))
sketch10.addConstraint(Sketcher.Constraint("Equal", 9, 11))
sketch10.addConstraint(Sketcher.Constraint("Radius", 5, 1.0))
sketch10.addConstraint(Sketcher.Constraint("DistanceX", 0, 2, 0, 1, 17.0))
sketch10.addConstraint(Sketcher.Constraint("DistanceX", 4, 2, 4, 1, 8.0))
sketch10.addConstraint(Sketcher.Constraint("DistanceY", 1, 2, 1, 1, 15.0))
sketch10.addConstraint(Sketcher.Constraint("DistanceY", 6, 1, 6, 2, 6.5))
sketch10.addConstraint(Sketcher.Constraint("DistanceX", -1, 1, 0, 2, 9.0))
sketch10.addConstraint(Sketcher.Constraint("DistanceX", -1, 1, 5, 3, 13.5))
sketch10.addConstraint(Sketcher.Constraint("DistanceY", -1, 1, 0, 2, 14.5))
sketch10.addConstraint(Sketcher.Constraint("DistanceY", -1, 1, 5, 3, 3.75))
sketch10.setExpression("Constraints[23]", "Params.sketch10_radius")
sketch10.setExpression("Constraints[24]", "Params.sketch10_width")
sketch10.setExpression("Constraints[25]", "Params.sketch10_width2")
sketch10.setExpression("Constraints[26]", "Params.sketch10_height")
sketch10.setExpression("Constraints[27]", "Params.sketch10_height2")
pad7 = doc.addObject("PartDesign::Pad", "Pad006")
body.addObject(pad7)
pad7.Profile = sketch10
pad7.setExpression("Length", "Params.pad7_length")
pad7.Reversed = True
doc.recompute()

fillet4 = doc.addObject("PartDesign::Fillet", "Fillet003")
body.addObject(fillet4)
fillet4.Base = (pad7, edges_at(pad7, [(1, 26, -0.5), (1, 26, 14.5)]))
fillet4.setExpression("Radius", "Params.fillet4_radius")

doc.recompute()
